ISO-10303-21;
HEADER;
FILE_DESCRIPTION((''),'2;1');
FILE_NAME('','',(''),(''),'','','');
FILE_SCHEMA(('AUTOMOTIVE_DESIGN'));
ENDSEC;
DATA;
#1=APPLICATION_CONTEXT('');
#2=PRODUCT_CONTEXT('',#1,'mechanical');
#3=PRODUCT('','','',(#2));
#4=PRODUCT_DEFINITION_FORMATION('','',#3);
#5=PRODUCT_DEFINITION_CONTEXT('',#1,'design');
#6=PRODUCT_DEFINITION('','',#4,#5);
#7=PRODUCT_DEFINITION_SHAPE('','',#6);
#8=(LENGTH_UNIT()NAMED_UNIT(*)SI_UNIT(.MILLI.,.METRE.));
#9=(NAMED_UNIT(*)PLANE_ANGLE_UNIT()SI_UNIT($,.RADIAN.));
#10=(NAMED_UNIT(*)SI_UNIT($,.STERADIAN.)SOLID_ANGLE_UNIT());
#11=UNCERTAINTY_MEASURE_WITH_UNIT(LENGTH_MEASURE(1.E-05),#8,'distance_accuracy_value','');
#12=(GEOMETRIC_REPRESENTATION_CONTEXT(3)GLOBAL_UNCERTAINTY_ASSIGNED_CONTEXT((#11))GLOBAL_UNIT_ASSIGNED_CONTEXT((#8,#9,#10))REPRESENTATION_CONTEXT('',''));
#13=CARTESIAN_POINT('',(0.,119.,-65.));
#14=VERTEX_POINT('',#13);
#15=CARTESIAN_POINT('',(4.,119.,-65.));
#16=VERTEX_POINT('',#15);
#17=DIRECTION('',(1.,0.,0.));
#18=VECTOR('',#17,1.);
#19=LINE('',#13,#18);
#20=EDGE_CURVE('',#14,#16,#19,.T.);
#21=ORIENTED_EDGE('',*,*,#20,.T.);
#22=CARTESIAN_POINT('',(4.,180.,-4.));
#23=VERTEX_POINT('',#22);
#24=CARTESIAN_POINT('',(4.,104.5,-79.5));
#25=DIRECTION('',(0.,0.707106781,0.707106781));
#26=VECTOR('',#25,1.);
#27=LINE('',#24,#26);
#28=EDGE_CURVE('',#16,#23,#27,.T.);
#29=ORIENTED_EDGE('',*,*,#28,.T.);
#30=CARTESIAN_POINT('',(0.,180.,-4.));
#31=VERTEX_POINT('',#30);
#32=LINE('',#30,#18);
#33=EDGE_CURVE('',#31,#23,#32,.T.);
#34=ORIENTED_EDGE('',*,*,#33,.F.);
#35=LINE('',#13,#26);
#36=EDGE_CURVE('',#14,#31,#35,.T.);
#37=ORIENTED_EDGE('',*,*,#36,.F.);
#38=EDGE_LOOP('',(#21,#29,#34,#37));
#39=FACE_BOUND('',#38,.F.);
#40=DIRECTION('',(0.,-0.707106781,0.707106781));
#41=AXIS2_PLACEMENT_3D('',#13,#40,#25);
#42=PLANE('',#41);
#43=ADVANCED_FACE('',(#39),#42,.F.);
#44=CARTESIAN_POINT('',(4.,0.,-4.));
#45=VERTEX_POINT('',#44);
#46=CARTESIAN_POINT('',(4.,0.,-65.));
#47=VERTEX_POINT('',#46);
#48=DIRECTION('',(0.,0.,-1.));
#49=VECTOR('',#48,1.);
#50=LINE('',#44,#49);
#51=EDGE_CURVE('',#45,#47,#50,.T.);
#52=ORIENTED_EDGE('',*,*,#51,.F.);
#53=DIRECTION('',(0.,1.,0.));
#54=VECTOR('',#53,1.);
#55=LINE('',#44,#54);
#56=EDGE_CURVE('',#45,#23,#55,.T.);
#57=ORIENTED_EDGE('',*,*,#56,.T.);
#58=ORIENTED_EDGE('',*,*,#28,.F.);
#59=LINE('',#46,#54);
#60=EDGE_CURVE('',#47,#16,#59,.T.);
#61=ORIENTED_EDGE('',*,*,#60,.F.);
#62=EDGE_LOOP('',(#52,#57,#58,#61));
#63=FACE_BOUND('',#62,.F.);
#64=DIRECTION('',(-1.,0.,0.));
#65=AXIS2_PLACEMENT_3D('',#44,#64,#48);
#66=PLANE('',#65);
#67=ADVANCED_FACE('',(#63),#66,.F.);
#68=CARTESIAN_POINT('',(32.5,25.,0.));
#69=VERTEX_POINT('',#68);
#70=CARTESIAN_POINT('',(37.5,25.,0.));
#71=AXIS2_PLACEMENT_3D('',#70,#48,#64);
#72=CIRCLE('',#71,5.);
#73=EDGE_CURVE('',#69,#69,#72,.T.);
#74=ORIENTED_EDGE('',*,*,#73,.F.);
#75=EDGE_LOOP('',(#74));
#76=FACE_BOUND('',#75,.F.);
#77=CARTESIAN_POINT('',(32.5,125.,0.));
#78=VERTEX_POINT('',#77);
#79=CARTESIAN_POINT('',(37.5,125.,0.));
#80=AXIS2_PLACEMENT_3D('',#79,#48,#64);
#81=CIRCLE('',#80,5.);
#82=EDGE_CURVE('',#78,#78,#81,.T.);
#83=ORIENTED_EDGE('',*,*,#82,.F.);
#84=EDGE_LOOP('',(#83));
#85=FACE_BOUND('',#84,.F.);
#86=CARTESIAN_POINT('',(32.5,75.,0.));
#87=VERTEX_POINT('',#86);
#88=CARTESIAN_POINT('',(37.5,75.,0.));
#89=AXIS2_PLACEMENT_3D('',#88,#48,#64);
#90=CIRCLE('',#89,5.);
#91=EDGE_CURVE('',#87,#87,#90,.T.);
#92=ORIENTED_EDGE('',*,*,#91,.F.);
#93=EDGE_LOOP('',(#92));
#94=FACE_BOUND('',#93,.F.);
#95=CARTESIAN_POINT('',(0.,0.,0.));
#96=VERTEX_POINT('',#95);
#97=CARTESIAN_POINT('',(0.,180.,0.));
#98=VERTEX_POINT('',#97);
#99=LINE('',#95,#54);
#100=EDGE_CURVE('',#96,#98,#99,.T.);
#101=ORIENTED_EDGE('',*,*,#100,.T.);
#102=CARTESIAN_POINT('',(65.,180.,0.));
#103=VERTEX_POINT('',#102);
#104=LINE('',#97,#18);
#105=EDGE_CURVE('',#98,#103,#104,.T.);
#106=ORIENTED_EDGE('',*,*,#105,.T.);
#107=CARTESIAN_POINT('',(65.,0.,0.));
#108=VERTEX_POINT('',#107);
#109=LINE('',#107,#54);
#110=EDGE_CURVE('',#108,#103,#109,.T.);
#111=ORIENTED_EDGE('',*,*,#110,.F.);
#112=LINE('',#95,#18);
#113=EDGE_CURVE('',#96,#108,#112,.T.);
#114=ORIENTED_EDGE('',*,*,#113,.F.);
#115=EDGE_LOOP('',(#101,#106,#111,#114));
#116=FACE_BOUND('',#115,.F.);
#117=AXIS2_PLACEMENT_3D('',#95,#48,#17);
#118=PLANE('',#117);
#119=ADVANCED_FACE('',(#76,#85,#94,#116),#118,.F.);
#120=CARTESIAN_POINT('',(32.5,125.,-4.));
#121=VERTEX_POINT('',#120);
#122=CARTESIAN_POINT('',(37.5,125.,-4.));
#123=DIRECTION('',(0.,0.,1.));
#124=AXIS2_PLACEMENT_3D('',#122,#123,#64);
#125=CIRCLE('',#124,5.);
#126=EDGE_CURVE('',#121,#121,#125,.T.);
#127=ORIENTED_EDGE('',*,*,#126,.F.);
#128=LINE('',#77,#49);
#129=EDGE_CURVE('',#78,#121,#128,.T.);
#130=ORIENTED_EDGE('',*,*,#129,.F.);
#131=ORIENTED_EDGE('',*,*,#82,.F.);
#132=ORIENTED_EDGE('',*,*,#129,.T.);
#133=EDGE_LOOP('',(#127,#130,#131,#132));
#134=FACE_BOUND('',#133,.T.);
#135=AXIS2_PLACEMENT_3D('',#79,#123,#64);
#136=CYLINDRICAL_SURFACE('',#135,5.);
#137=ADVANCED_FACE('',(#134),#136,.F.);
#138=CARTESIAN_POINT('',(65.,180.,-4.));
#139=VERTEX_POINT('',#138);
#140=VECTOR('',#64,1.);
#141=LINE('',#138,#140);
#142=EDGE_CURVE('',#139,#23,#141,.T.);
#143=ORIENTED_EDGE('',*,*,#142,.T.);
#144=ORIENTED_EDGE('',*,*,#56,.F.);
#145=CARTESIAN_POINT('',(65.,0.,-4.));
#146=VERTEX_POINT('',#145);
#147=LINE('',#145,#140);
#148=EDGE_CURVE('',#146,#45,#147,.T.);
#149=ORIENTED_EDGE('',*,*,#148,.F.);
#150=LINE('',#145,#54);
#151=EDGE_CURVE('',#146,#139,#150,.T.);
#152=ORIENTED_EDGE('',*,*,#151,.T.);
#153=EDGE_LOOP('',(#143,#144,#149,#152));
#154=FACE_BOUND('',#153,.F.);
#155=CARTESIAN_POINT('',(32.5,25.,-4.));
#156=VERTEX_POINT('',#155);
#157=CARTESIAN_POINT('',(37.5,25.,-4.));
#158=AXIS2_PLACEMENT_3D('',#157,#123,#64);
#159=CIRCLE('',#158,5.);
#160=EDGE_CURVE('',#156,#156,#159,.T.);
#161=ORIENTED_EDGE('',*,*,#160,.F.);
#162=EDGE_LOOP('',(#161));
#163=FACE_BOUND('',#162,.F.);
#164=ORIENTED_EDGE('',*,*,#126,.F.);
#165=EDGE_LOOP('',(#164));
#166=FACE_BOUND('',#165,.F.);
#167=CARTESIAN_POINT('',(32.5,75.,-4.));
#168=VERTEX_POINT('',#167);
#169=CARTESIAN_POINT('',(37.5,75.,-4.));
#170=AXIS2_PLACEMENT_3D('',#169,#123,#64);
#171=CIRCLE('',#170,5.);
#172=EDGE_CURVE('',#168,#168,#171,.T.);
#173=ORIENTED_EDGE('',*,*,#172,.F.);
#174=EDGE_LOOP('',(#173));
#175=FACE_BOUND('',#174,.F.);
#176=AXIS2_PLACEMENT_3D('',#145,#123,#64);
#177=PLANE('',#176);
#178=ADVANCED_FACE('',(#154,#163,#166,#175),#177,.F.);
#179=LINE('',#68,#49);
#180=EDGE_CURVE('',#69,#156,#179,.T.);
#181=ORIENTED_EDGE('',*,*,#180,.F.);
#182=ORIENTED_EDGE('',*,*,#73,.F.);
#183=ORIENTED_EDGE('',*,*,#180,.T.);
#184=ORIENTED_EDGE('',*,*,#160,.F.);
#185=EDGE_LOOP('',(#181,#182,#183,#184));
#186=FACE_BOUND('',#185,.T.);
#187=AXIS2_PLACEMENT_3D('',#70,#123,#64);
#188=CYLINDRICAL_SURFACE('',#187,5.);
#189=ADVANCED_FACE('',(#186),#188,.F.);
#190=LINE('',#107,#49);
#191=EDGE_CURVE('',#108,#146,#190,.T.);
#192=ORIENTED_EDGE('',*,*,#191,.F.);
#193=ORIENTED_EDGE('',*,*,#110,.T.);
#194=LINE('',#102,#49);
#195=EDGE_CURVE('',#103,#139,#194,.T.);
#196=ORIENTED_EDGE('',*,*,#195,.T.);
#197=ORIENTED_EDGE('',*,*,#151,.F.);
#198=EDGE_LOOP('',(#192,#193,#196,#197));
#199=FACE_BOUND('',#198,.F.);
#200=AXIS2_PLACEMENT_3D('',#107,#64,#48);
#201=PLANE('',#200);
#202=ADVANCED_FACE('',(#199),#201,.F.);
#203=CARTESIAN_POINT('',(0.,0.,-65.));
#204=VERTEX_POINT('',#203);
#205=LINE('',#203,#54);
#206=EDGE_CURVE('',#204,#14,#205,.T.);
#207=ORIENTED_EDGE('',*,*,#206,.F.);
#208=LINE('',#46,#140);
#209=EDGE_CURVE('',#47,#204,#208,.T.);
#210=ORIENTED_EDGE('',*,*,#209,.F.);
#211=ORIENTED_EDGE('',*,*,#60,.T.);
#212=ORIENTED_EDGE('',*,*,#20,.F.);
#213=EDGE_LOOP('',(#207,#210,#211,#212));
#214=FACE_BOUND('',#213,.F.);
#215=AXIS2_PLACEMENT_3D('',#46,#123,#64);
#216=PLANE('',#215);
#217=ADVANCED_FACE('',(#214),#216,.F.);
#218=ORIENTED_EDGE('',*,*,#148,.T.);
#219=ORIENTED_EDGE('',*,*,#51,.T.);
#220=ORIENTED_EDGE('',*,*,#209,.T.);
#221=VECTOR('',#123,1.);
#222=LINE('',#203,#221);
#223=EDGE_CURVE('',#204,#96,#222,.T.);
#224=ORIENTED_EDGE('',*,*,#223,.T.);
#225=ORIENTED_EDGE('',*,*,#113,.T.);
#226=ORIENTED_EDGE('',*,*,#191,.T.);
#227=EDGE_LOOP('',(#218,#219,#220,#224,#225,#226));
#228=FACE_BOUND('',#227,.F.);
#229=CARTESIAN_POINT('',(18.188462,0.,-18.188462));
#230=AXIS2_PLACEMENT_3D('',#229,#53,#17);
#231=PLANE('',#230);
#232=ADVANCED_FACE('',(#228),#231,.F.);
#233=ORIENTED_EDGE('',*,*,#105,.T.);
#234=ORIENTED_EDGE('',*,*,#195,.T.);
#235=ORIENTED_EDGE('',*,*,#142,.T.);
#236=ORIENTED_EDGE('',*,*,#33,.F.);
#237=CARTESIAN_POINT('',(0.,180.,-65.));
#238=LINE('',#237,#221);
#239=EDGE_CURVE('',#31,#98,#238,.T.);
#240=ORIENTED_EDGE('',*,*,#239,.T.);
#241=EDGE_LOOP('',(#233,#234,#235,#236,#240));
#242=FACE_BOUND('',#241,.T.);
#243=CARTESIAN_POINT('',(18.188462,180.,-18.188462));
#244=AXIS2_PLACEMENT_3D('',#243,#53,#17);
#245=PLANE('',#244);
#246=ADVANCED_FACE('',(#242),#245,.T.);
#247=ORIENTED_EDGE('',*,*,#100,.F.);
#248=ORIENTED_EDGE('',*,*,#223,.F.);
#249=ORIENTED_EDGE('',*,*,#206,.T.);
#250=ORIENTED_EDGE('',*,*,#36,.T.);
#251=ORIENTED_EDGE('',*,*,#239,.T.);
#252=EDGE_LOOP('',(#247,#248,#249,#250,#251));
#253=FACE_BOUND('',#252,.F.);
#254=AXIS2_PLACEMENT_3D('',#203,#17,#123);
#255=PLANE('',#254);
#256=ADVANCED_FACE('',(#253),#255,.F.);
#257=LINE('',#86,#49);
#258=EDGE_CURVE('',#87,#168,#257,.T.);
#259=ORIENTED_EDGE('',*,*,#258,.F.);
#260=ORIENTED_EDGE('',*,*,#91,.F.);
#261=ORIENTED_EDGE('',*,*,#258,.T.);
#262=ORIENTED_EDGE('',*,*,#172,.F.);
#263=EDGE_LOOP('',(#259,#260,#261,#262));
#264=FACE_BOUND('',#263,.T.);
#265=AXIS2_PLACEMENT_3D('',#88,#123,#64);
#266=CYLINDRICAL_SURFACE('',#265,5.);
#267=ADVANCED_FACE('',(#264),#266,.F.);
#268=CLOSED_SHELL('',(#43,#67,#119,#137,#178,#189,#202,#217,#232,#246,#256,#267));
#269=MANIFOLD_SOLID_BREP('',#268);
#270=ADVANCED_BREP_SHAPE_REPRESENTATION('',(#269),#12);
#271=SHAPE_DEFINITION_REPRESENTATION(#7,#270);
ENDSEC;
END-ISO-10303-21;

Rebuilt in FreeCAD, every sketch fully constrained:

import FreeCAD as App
import Part
import Sketcher
from FreeCAD import Vector

doc = App.newDocument("Part")
body = doc.addObject("PartDesign::Body", "Body")

# Sketch on XZ plane
sketch1 = body.newObject("Sketcher::SketchObject", "Sketch")
sketch1.AttachmentSupport = (doc.getObject("XZ_Plane"), [""])
sketch1.MapMode = "FlatFace"
sketch1.addGeometry(Part.LineSegment(Vector(0, -65, 0), Vector(0, 0, 0)), False)
sketch1.addGeometry(Part.LineSegment(Vector(0, 0, 0), Vector(65, 0, 0)), False)
sketch1.addGeometry(Part.LineSegment(Vector(65, 0, 0), Vector(65, -4, 0)), False)
sketch1.addGeometry(Part.LineSegment(Vector(65, -4, 0), Vector(4, -4, 0)), False)
sketch1.addGeometry(Part.LineSegment(Vector(4, -4, 0), Vector(4, -65, 0)), False)
sketch1.addGeometry(Part.LineSegment(Vector(4, -65, 0), Vector(0, -65, 0)), False)
sketch1.addConstraint(Sketcher.Constraint("Coincident", 0, 2, 1, 1))
sketch1.addConstraint(Sketcher.Constraint("Coincident", 1, 2, 2, 1))
sketch1.addConstraint(Sketcher.Constraint("Coincident", 2, 2, 3, 1))
sketch1.addConstraint(Sketcher.Constraint("Coincident", 3, 2, 4, 1))
sketch1.addConstraint(Sketcher.Constraint("Coincident", 4, 2, 5, 1))
sketch1.addConstraint(Sketcher.Constraint("Coincident", 5, 2, 0, 1))
sketch1.addConstraint(Sketcher.Constraint("Vertical", 0))
sketch1.addConstraint(Sketcher.Constraint("Horizontal", 1))
sketch1.addConstraint(Sketcher.Constraint("Vertical", 2))
sketch1.addConstraint(Sketcher.Constraint("Horizontal", 3))
sketch1.addConstraint(Sketcher.Constraint("Vertical", 4))
sketch1.addConstraint(Sketcher.Constraint("Horizontal", 5))
sketch1.addConstraint(Sketcher.Constraint("Coincident", 0, 2, -1, 1))
sketch1.addConstraint(Sketcher.Constraint("Equal", 1, 0))
sketch1.addConstraint(Sketcher.Constraint("Equal", 5, 2))
sketch1.addConstraint(Sketcher.Constraint("DistanceX", 1, 1, 1, 2, 65.0))
sketch1.addConstraint(Sketcher.Constraint("DistanceX", 3, 2, 3, 1, 61.0))
pad1 = body.newObject("PartDesign::Pad", "Pad")
pad1.Profile = sketch1
pad1.Length = 180
pad1.Reversed = True

# Sketch on XY plane
sketch2 = body.newObject("Sketcher::SketchObject", "Sketch001")
sketch2.AttachmentSupport = (doc.getObject("XY_Plane"), [""])
sketch2.MapMode = "FlatFace"
sketch2.addGeometry(Part.Circle(Vector(38, 25, 0), Vector(0, 0, 1), 5), False)
sketch2.addGeometry(Part.Circle(Vector(38, 75, 0), Vector(0, 0, 1), 5), False)
sketch2.addGeometry(Part.Circle(Vector(38, 125, 0), Vector(0, 0, 1), 5), False)
sketch2.addConstraint(Sketcher.Constraint("Equal", 0, 1))
sketch2.addConstraint(Sketcher.Constraint("Equal", 1, 2))
sketch2.addConstraint(Sketcher.Constraint("Vertical", 0, 3, 1, 3))
sketch2.addConstraint(Sketcher.Constraint("Vertical", 1, 3, 2, 3))
sketch2.addConstraint(Sketcher.Constraint("Diameter", 0, 10.0))
sketch2.addConstraint(Sketcher.Constraint("DistanceY", -1, 1, 0, 3, 25.0))
sketch2.addConstraint(Sketcher.Constraint("DistanceY", -1, 1, 1, 3, 75.0))
sketch2.addConstraint(Sketcher.Constraint("DistanceY", -1, 1, 2, 3, 125.0))
sketch2.addConstraint(Sketcher.Constraint("DistanceX", -1, 1, 0, 3, 37.5))
pocket1 = body.newObject("PartDesign::Pocket", "Pocket")
pocket1.Profile = sketch2
pocket1.Length = 10

# Sketch on YZ plane
sketch3 = body.newObject("Sketcher::SketchObject", "Sketch002")
sketch3.AttachmentSupport = (doc.getObject("YZ_Plane"), [""])
sketch3.MapMode = "FlatFace"
sketch3.addGeometry(Part.LineSegment(Vector(180, -4, 0), Vector(180, -65, 0)), False)
sketch3.addGeometry(Part.LineSegment(Vector(180, -65, 0), Vector(119, -65, 0)), False)
sketch3.addGeometry(Part.LineSegment(Vector(119, -65, 0), Vector(180, -4, 0)), False)
sketch3.addConstraint(Sketcher.Constraint("Coincident", 0, 2, 1, 1))
sketch3.addConstraint(Sketcher.Constraint("Coincident", 1, 2, 2, 1))
sketch3.addConstraint(Sketcher.Constraint("Coincident", 2, 2, 0, 1))
sketch3.addConstraint(Sketcher.Constraint("Vertical", 0))
sketch3.addConstraint(Sketcher.Constraint("Horizontal", 1))
sketch3.addConstraint(Sketcher.Constraint("Equal", 1, 0))
sketch3.addConstraint(Sketcher.Constraint("DistanceX", 1, 2, 1, 1, 61.0))
sketch3.addConstraint(Sketcher.Constraint("DistanceX", -1, 1, 0, 2, 180.0))
sketch3.addConstraint(Sketcher.Constraint("DistanceY", 0, 2, -1, 1, 65.0))
pocket2 = body.newObject("PartDesign::Pocket", "Pocket001")
pocket2.Profile = sketch3
pocket2.Length = 10
pocket2.Reversed = True

doc.recompute()
